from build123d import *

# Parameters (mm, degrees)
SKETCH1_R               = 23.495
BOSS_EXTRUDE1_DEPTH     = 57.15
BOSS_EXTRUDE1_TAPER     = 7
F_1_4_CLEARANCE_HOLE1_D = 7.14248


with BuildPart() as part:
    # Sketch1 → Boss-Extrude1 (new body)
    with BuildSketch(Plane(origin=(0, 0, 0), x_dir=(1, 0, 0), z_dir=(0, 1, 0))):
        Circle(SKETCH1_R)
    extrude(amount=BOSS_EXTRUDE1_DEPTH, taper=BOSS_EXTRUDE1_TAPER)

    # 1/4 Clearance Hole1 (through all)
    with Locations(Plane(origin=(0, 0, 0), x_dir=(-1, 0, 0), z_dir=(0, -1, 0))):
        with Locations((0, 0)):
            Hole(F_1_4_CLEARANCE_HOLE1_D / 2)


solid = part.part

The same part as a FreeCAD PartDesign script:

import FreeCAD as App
import Part
import Sketcher
Q = App.Units.Quantity

doc = App.newDocument("Part")
body = doc.addObject("PartDesign::Body", "Body")

# Sketch on XZ plane
sketch1 = body.newObject("Sketcher::SketchObject", "Sketch")
sketch1.AttachmentSupport = (doc.getObject("XZ_Plane"), [""])
sketch1.MapMode = "FlatFace"
sketch1.addGeometry(Part.Circle(App.Vector(0, 0, 0), App.Vector(0, 0, 1), 23.495), False)
sketch1.addConstraint([
    Sketcher.Constraint("Coincident", 0, 3, -1, 1),
    Sketcher.Constraint("Diameter", 0, Q("1.85 in")),
])
pad1 = body.newObject("PartDesign::Pad", "Pad")
pad1.Profile = sketch1
pad1.Length = Q("2.25 in")
pad1.Reversed = True
pad1.TaperAngle = -7

# Sketch on XZ plane
sketch2 = body.newObject("Sketcher::SketchObject", "Sketch001")
sketch2.AttachmentSupport = (doc.getObject("XZ_Plane"), [""])
sketch2.MapMode = "FlatFace"
sketch2.addGeometry(Part.Circle(App.Vector(0, 0, 0), App.Vector(0, 0, 1), 3.57124), False)
sketch2.addConstraint([
    Sketcher.Constraint("Coincident", 0, 3, -1, 1),
    Sketcher.Constraint("Diameter", 0, Q("0.2812 in")),
])
doc.recompute()
hole = body.newObject("PartDesign::Hole", "Hole")
hole.Profile = sketch2
hole.ThreadType = "None"
hole.Diameter = Q("0.2812 in")
hole.DepthType = "ThroughAll"

doc.recompute()
